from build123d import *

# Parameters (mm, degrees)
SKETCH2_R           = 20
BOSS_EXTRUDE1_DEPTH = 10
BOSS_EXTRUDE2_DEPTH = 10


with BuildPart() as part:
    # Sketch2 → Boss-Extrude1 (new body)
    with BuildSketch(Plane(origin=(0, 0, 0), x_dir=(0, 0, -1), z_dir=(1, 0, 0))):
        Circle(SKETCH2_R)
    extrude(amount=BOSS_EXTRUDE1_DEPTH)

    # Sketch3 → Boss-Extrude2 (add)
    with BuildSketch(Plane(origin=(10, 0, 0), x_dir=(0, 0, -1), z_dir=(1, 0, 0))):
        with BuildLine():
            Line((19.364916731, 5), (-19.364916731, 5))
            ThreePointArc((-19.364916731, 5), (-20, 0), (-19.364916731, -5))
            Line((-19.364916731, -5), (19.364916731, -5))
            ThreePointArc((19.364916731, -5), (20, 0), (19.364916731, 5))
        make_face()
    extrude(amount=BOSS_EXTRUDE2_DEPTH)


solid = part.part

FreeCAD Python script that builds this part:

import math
import FreeCAD as App
import Part
import Sketcher

V = App.Vector

doc = App.newDocument("Part")
body = doc.addObject("PartDesign::Body", "Body")

# Sketch on YZ plane
sketch1 = body.newObject("Sketcher::SketchObject", "Sketch")
sketch1.AttachmentSupport = (doc.getObject("YZ_Plane"), [""])
sketch1.MapMode = "FlatFace"
sketch1.addGeometry(Part.Circle(V(0, 0, 0), V(0, 0, 1), 20), False)
sketch1.addConstraint([
    Sketcher.Constraint("Coincident", 0, 3, -1, 1),
    Sketcher.Constraint("Diameter", 0, 40.0),
])
pad1 = body.newObject("PartDesign::Pad", "Pad")
pad1.Profile = sketch1
pad1.Length = 10

# Sketch on YZ plane
sketch2 = body.newObject("Sketcher::SketchObject", "Sketch001")
sketch2.AttachmentSupport = (doc.getObject("YZ_Plane"), [""])
sketch2.MapMode = "FlatFace"
sketch2.AttachmentOffset = App.Placement(V(0, 0, 10), App.Rotation())
sketch2.addGeometry([
    Part.LineSegment(V(5, -19, 0), V(5, 19, 0)),
    Part.ArcOfCircle(Part.Circle(V(0, 0, 0), V(0, 0, 1), 20), math.radians(76), math.radians(104)),
    Part.LineSegment(V(-5, 19, 0), V(-5, -19, 0)),
    Part.ArcOfCircle(Part.Circle(V(0, 0, 0), V(0, 0, 1), 20), math.radians(-104), math.radians(-76)),
], False)
sketch2.addConstraint([
    Sketcher.Constraint("Coincident", 0, 2, 1, 1),
    Sketcher.Constraint("Coincident", 1, 2, 2, 1),
    Sketcher.Constraint("Coincident", 2, 2, 3, 1),
    Sketcher.Constraint("Coincident", 3, 2, 0, 1),
    Sketcher.Constraint("Vertical", 0),
    Sketcher.Constraint("Vertical", 2),
    Sketcher.Constraint("Coincident", 1, 3, -1, 1),
    Sketcher.Constraint("Coincident", 3, 3, -1, 1),
    Sketcher.Constraint("Equal", 1, 3),
    Sketcher.Constraint("Horizontal", 0, 2, 1, 2),
    Sketcher.Constraint("Radius", 1, 20.0),
    Sketcher.Constraint("DistanceX", -1, 1, 0, 2, 5.0),
])
pad2 = body.newObject("PartDesign::Pad", "Pad001")
pad2.Profile = sketch2
pad2.Length = 10

doc.recompute()
